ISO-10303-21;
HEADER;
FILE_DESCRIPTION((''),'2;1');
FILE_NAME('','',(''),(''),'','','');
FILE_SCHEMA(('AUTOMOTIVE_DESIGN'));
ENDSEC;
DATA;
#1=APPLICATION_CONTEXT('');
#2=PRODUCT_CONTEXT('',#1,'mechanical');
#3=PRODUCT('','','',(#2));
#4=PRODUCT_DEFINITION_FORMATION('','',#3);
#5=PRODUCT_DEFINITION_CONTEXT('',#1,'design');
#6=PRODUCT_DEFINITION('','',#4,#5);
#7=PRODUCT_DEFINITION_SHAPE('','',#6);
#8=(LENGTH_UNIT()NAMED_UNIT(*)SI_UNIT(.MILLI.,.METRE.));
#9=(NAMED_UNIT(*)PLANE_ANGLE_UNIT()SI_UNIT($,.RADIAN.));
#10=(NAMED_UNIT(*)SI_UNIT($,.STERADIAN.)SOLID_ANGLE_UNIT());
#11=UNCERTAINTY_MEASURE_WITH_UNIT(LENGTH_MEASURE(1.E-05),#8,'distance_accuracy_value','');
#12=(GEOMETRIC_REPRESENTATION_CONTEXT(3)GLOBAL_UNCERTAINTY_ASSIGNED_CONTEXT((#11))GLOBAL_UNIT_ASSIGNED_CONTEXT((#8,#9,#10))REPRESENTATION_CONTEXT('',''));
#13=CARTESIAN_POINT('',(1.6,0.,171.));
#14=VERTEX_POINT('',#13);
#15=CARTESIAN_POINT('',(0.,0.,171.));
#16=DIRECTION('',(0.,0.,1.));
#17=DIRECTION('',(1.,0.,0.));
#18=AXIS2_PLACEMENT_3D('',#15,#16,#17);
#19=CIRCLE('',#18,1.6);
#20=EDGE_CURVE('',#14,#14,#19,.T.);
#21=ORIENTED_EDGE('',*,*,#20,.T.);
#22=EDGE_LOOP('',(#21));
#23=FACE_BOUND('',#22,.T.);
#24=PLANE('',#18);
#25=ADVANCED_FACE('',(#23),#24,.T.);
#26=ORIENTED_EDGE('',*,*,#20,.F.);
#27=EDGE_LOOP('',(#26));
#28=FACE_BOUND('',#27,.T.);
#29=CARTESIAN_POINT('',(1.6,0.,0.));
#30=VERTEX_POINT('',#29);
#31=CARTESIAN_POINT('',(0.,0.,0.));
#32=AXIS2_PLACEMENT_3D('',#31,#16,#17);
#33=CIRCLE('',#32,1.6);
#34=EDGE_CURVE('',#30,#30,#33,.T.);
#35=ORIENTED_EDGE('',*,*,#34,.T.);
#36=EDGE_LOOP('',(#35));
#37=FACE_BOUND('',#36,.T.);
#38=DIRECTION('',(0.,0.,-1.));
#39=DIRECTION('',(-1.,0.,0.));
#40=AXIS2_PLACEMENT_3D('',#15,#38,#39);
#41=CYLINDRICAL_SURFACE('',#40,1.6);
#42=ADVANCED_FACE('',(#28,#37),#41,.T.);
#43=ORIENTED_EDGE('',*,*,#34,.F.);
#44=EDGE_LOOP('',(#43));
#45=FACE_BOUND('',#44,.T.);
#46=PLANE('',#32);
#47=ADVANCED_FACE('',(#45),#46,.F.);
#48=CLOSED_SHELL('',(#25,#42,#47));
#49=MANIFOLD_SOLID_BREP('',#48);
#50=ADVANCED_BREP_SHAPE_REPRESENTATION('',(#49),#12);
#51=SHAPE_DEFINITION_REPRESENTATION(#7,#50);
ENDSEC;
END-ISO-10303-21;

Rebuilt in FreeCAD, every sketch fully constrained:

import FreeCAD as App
import Part
import Sketcher
from FreeCAD import Vector
Q = App.Units.Quantity

doc = App.newDocument("Part")
body = doc.addObject("PartDesign::Body", "Body")

# Sketch on XY plane
sketch1 = body.newObject("Sketcher::SketchObject", "Sketch")
sketch1.AttachmentSupport = (doc.getObject("XY_Plane"), [""])
sketch1.MapMode = "FlatFace"
sketch1.addGeometry(Part.Circle(Vector(0, 0, 0), Vector(0, 0, 1), 1.6), False)
sketch1.addConstraint([
    Sketcher.Constraint("Coincident", 0, 3, -1, 1),
    Sketcher.Constraint("Diameter", 0, Q("3.2 mm")),
])
pad1 = body.newObject("PartDesign::Pad", "Pad")
pad1.Profile = sketch1
pad1.Length = 171

doc.recompute()
